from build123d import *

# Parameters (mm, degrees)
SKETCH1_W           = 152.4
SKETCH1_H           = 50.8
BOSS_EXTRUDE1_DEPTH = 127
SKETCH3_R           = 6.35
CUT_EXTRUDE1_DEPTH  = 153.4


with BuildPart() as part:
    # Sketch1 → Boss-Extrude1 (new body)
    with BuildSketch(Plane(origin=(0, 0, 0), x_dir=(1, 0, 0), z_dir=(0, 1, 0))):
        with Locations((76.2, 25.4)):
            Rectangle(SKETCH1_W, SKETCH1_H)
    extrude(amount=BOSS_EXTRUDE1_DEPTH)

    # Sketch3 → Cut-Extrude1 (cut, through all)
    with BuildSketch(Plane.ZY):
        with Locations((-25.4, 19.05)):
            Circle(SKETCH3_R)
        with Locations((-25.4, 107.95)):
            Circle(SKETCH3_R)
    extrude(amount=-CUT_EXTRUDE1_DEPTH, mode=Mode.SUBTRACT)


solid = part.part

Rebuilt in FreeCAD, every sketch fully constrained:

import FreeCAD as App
import Part
import Sketcher
from FreeCAD import Vector
Q = App.Units.Quantity


def add_polygon(sketch, points):
    """Adds a closed chain of lines whose ends are joined by coincident constraints."""
    first, n = sketch.GeometryCount, len(points)
    for a, b in zip(points, points[1:] + points[:1]):
        sketch.addGeometry(Part.LineSegment(App.Vector(*a, 0), App.Vector(*b, 0)), False)
    for i in range(n):
        sketch.addConstraint(Sketcher.Constraint("Coincident", first + i, 2, first + (i + 1) % n, 1))

doc = App.newDocument("Part")
body = doc.addObject("PartDesign::Body", "Body")

sketch1 = body.newObject("Sketcher::SketchObject", "Sketch")
sketch1.AttachmentSupport = (doc.getObject("XZ_Plane"), [""])
sketch1.MapMode = "FlatFace"
add_polygon(sketch1, [(0, -51), (0, 0), (152, 0), (152, -51)])
sketch1.addConstraint([
    Sketcher.Constraint("Vertical", 0),
    Sketcher.Constraint("Horizontal", 1),
    Sketcher.Constraint("Vertical", 2),
    Sketcher.Constraint("Horizontal", 3),
    Sketcher.Constraint("Coincident", 0, 2, -1, 1),
    Sketcher.Constraint("DistanceX", 1, 1, 1, 2, Q("6 in")),
    Sketcher.Constraint("DistanceY", 0, 1, 0, 2, Q("2 in")),
])
pad1 = body.newObject("PartDesign::Pad", "Pad")
pad1.Profile = sketch1
pad1.Length = Q("5 in")
pad1.Reversed = True

sketch2 = body.newObject("Sketcher::SketchObject", "Sketch001")
sketch2.AttachmentSupport = (doc.getObject("YZ_Plane"), [""])
sketch2.MapMode = "FlatFace"
sketch2.addGeometry([
    Part.Circle(Vector(19, -25, 0), Vector(0, 0, 1), 6),
    Part.Circle(Vector(108, -25, 0), Vector(0, 0, 1), 6),
], False)
sketch2.addConstraint([
    Sketcher.Constraint("Equal", 0, 1),
    Sketcher.Constraint("Horizontal", 0, 3, 1, 3),
    Sketcher.Constraint("Diameter", 0, Q("0.5 in")),
    Sketcher.Constraint("DistanceY", 0, 3, -1, 1, Q("1 in")),
    Sketcher.Constraint("DistanceX", 0, 3, 1, 3, Q("3.5 in")),
    Sketcher.Constraint("DistanceX", -1, 1, 0, 3, Q("0.75 in")),
])
pocket1 = body.newObject("PartDesign::Pocket", "Pocket")
pocket1.Profile = sketch2
pocket1.Type = "ThroughAll"
pocket1.Reversed = True

doc.recompute()
